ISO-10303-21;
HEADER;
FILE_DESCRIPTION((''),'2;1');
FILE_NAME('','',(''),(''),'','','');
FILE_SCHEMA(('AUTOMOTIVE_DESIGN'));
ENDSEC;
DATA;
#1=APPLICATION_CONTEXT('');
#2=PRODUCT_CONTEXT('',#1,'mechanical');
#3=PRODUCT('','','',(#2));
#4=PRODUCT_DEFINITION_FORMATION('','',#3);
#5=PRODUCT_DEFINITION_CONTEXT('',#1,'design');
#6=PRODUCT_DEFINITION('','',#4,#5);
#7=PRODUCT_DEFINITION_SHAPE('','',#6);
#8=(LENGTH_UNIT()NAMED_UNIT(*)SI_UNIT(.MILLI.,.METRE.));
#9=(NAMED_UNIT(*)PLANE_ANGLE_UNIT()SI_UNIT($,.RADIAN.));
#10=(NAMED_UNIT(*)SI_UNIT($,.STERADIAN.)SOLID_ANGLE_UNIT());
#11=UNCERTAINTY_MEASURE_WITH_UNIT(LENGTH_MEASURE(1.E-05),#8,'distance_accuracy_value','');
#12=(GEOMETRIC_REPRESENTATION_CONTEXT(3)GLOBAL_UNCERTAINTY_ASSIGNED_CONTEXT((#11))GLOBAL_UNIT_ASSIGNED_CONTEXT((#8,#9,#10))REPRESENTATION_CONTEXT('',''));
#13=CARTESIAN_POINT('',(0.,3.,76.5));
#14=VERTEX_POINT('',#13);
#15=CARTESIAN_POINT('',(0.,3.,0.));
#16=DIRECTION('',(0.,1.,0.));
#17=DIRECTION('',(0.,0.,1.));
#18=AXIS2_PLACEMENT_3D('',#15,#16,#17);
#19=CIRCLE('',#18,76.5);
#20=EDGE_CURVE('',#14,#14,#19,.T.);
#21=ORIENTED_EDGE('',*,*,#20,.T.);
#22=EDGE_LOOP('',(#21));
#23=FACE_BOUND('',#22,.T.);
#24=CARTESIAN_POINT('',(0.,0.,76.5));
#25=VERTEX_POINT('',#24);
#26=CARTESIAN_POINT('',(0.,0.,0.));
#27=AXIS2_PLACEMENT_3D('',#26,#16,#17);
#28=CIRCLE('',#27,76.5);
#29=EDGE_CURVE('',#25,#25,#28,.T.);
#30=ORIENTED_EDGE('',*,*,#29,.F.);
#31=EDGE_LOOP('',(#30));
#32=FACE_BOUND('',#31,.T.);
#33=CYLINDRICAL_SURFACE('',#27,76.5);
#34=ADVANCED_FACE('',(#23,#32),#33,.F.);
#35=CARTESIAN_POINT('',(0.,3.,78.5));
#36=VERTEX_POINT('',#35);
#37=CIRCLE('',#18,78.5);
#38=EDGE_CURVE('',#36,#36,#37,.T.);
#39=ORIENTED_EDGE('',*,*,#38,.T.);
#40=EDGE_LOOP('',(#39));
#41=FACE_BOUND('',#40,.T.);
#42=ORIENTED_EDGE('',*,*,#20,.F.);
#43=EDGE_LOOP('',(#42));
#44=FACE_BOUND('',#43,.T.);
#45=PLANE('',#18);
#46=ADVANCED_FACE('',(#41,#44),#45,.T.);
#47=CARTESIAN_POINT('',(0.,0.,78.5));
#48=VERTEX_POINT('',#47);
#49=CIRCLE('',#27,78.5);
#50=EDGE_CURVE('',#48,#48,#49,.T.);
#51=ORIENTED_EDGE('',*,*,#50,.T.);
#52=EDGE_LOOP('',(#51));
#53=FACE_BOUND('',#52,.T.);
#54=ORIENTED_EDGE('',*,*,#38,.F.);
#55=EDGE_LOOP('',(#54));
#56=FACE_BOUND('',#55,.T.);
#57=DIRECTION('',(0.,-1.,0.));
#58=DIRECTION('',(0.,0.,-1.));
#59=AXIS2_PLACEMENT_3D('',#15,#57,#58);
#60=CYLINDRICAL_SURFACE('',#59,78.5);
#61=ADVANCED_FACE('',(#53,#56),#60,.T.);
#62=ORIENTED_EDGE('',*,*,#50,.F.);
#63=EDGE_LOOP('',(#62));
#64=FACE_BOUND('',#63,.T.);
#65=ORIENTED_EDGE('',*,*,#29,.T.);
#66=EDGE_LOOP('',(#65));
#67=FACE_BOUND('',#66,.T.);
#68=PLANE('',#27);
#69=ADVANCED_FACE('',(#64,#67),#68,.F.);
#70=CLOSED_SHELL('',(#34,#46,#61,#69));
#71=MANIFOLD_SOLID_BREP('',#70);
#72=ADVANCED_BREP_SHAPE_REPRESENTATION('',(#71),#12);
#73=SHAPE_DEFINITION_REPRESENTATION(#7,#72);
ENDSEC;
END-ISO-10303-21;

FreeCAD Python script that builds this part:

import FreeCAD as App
import Part
import Sketcher

doc = App.newDocument("Part")
body = doc.addObject("PartDesign::Body", "Body")

sketch1 = body.newObject("Sketcher::SketchObject", "Sketch")
sketch1.AttachmentSupport = (doc.getObject("XZ_Plane"), [""])
sketch1.MapMode = "FlatFace"
sketch1.addGeometry(Part.Circle(App.Vector(0, 0, 0), App.Vector(0, 0, 1), 78.5), False)
sketch1.addConstraint([
    Sketcher.Constraint("Coincident", 0, 3, -1, 1),
    Sketcher.Constraint("Diameter", 0, 157.0),
])
pad1 = body.newObject("PartDesign::Pad", "Pad")
pad1.Profile = sketch1
pad1.Length = 3
pad1.Reversed = True

sketch2 = body.newObject("Sketcher::SketchObject", "Sketch001")
sketch2.AttachmentSupport = (doc.getObject("XZ_Plane"), [""])
sketch2.MapMode = "FlatFace"
sketch2.AttachmentOffset = App.Placement(App.Vector(0, 0, -3), App.Rotation())
sketch2.addGeometry(Part.Circle(App.Vector(0, 0, 0), App.Vector(0, 0, 1), 76.5), False)
sketch2.addConstraint([
    Sketcher.Constraint("Coincident", 0, 3, -1, 1),
    Sketcher.Constraint("Diameter", 0, 153.0),
])
pocket1 = body.newObject("PartDesign::Pocket", "Pocket")
pocket1.Profile = sketch2
pocket1.Type = "ThroughAll"
pocket1.Midplane = True

doc.recompute()
